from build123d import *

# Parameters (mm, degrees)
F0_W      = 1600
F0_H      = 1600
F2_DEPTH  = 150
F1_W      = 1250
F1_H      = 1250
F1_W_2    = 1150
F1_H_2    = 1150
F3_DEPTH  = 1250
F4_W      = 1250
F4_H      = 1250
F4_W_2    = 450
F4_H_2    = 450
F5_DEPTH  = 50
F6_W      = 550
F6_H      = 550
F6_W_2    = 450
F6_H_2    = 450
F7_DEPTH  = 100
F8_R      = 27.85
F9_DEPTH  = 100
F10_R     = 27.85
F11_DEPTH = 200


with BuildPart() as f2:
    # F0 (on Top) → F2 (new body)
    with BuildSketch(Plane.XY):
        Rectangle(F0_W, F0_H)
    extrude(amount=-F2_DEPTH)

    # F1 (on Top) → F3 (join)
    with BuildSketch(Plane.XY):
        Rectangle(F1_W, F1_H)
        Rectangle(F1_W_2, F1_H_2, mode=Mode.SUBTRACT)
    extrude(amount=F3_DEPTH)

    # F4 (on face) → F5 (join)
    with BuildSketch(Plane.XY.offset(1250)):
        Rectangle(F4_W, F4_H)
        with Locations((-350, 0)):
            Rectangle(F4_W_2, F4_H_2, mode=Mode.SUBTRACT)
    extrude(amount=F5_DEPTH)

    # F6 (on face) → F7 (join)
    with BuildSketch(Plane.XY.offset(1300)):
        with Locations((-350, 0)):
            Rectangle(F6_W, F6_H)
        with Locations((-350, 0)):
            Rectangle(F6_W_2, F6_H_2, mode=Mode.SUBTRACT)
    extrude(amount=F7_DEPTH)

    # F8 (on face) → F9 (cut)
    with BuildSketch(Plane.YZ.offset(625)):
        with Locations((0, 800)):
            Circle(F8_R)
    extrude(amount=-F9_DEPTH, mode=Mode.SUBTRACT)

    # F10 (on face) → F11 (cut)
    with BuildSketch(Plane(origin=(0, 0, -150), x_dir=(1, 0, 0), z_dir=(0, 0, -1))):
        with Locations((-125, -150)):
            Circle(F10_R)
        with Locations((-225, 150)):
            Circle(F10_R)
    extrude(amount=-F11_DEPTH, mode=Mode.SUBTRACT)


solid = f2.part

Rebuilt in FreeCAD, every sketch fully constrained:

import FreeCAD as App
import Part
import Sketcher
from FreeCAD import Vector


def add_polygon(sketch, points):
    """Adds a closed chain of lines whose ends are joined by coincident constraints."""
    first, n = sketch.GeometryCount, len(points)
    for a, b in zip(points, points[1:] + points[:1]):
        sketch.addGeometry(Part.LineSegment(App.Vector(*a, 0), App.Vector(*b, 0)), False)
    for i in range(n):
        sketch.addConstraint(Sketcher.Constraint("Coincident", first + i, 2, first + (i + 1) % n, 1))

doc = App.newDocument("Part")
body = doc.addObject("PartDesign::Body", "Body")

# Sketch on XY plane
sketch1 = body.newObject("Sketcher::SketchObject", "Sketch")
sketch1.AttachmentSupport = (doc.getObject("XY_Plane"), [""])
sketch1.MapMode = "FlatFace"
add_polygon(sketch1, [(-800, 800), (-800, -800), (800, -800), (800, 800)])  # lines 0-3
sketch1.addConstraint([
    Sketcher.Constraint("Vertical", 0),
    Sketcher.Constraint("Horizontal", 1),
    Sketcher.Constraint("Vertical", 2),
    Sketcher.Constraint("Horizontal", 3),
    Sketcher.Constraint("Symmetric", 0, 2, 2, 2, -1, 1),
    Sketcher.Constraint("Equal", 3, 0),
    Sketcher.Constraint("DistanceX", 1, 1, 1, 2, 1600.0),
])
pad1 = body.newObject("PartDesign::Pad", "Pad")
pad1.Profile = sketch1
pad1.Length = 150
pad1.Reversed = True

# Sketch on XY plane
sketch2 = body.newObject("Sketcher::SketchObject", "Sketch001")
sketch2.AttachmentSupport = (doc.getObject("XY_Plane"), [""])
sketch2.MapMode = "FlatFace"
add_polygon(sketch2, [(-625, 625), (-625, -625), (625, -625), (625, 625)])  # lines 0-3
add_polygon(sketch2, [(575, -575), (-575, -575), (-575, 575), (575, 575)])  # lines 4-7
sketch2.addConstraint([
    Sketcher.Constraint("Vertical", 0),
    Sketcher.Constraint("Horizontal", 1),
    Sketcher.Constraint("Vertical", 2),
    Sketcher.Constraint("Horizontal", 3),
    Sketcher.Constraint("Horizontal", 4),
    Sketcher.Constraint("Vertical", 5),
    Sketcher.Constraint("Horizontal", 6),
    Sketcher.Constraint("Vertical", 7),
    Sketcher.Constraint("Symmetric", 0, 2, 2, 2, -1, 1),
    Sketcher.Constraint("Symmetric", 4, 2, 6, 2, -1, 1),
    Sketcher.Constraint("Equal", 3, 0),
    Sketcher.Constraint("Equal", 6, 5),
    Sketcher.Constraint("DistanceX", 1, 1, 1, 2, 1250.0),
    Sketcher.Constraint("DistanceX", 4, 2, 4, 1, 1150.0),
])
pad2 = body.newObject("PartDesign::Pad", "Pad001")
pad2.Profile = sketch2
pad2.Length = 1250

# Sketch on XY plane
sketch3 = body.newObject("Sketcher::SketchObject", "Sketch002")
sketch3.AttachmentSupport = (doc.getObject("XY_Plane"), [""])
sketch3.MapMode = "FlatFace"
sketch3.AttachmentOffset = App.Placement(Vector(0, 0, 1250), App.Rotation())
add_polygon(sketch3, [(-625, 625), (-625, -625), (625, -625), (625, 625)])  # lines 0-3
add_polygon(sketch3, [(-125, -225), (-575, -225), (-575, 225), (-125, 225)])  # lines 4-7
sketch3.addConstraint([
    Sketcher.Constraint("Vertical", 0),
    Sketcher.Constraint("Horizontal", 1),
    Sketcher.Constraint("Vertical", 2),
    Sketcher.Constraint("Horizontal", 3),
    Sketcher.Constraint("Horizontal", 4),
    Sketcher.Constraint("Vertical", 5),
    Sketcher.Constraint("Horizontal", 6),
    Sketcher.Constraint("Vertical", 7),
    Sketcher.Constraint("Symmetric", 0, 2, 2, 2, -1, 1),
    Sketcher.Constraint("Equal", 3, 0),
    Sketcher.Constraint("Equal", 6, 5),
    Sketcher.Constraint("DistanceX", 1, 1, 1, 2, 1250.0),
    Sketcher.Constraint("DistanceX", 4, 2, 4, 1, 450.0),
    Sketcher.Constraint("DistanceX", 4, 2, -1, 1, 575.0),
    Sketcher.Constraint("DistanceY", 4, 2, -1, 1, 225.0),
])
pad3 = body.newObject("PartDesign::Pad", "Pad002")
pad3.Profile = sketch3
pad3.Length = 50

# Sketch on XY plane
sketch4 = body.newObject("Sketcher::SketchObject", "Sketch003")
sketch4.AttachmentSupport = (doc.getObject("XY_Plane"), [""])
sketch4.MapMode = "FlatFace"
sketch4.AttachmentOffset = App.Placement(Vector(0, 0, 1300), App.Rotation())
add_polygon(sketch4, [(-625, 275), (-625, -275), (-75, -275), (-75, 275)])  # lines 0-3
add_polygon(sketch4, [(-125, -225), (-575, -225), (-575, 225), (-125, 225)])  # lines 4-7
sketch4.addConstraint([
    Sketcher.Constraint("Vertical", 0),
    Sketcher.Constraint("Horizontal", 1),
    Sketcher.Constraint("Vertical", 2),
    Sketcher.Constraint("Horizontal", 3),
    Sketcher.Constraint("Horizontal", 4),
    Sketcher.Constraint("Vertical", 5),
    Sketcher.Constraint("Horizontal", 6),
    Sketcher.Constraint("Vertical", 7),
    Sketcher.Constraint("Equal", 3, 0),
    Sketcher.Constraint("Equal", 6, 5),
    Sketcher.Constraint("DistanceX", 1, 1, 1, 2, 550.0),
    Sketcher.Constraint("DistanceX", 4, 2, 4, 1, 450.0),
    Sketcher.Constraint("DistanceX", 0, 2, -1, 1, 625.0),
    Sketcher.Constraint("DistanceY", 0, 2, -1, 1, 275.0),
    Sketcher.Constraint("DistanceX", 4, 2, -1, 1, 575.0),
    Sketcher.Constraint("DistanceY", 4, 2, -1, 1, 225.0),
])
pad4 = body.newObject("PartDesign::Pad", "Pad003")
pad4.Profile = sketch4
pad4.Length = 100

# Sketch on YZ plane
sketch5 = body.newObject("Sketcher::SketchObject", "Sketch004")
sketch5.AttachmentSupport = (doc.getObject("YZ_Plane"), [""])
sketch5.MapMode = "FlatFace"
sketch5.AttachmentOffset = App.Placement(Vector(0, 0, 625), App.Rotation())
sketch5.addGeometry(Part.Circle(Vector(0, 800, 0), Vector(0, 0, 1), 28), False)
sketch5.addConstraint([
    Sketcher.Constraint("PointOnObject", 0, 3, -2),
    Sketcher.Constraint("Diameter", 0, 55.7),
    Sketcher.Constraint("DistanceY", -1, 1, 0, 3, 800.0),
])
pocket1 = body.newObject("PartDesign::Pocket", "Pocket")
pocket1.Profile = sketch5
pocket1.Length = 100

# Sketch on XY plane
sketch6 = body.newObject("Sketcher::SketchObject", "Sketch005")
sketch6.AttachmentSupport = (doc.getObject("XY_Plane"), [""])
sketch6.MapMode = "FlatFace"
sketch6.AttachmentOffset = App.Placement(Vector(0, 0, -150), App.Rotation())
sketch6.addGeometry([
    Part.Circle(Vector(-125, 150, 0), Vector(0, 0, 1), 28),
    Part.Circle(Vector(-225, -150, 0), Vector(0, 0, 1), 28),
], False)
sketch6.addConstraint([
    Sketcher.Constraint("Equal", 0, 1),
    Sketcher.Constraint("Diameter", 0, 55.7),
    Sketcher.Constraint("DistanceX", 0, 3, -1, 1, 125.0),
    Sketcher.Constraint("DistanceY", -1, 1, 0, 3, 150.0),
    Sketcher.Constraint("DistanceX", 1, 3, -1, 1, 225.0),
    Sketcher.Constraint("DistanceY", 1, 3, -1, 1, 150.0),
])
pocket2 = body.newObject("PartDesign::Pocket", "Pocket001")
pocket2.Profile = sketch6
pocket2.Length = 200
pocket2.Reversed = True

doc.recompute()
